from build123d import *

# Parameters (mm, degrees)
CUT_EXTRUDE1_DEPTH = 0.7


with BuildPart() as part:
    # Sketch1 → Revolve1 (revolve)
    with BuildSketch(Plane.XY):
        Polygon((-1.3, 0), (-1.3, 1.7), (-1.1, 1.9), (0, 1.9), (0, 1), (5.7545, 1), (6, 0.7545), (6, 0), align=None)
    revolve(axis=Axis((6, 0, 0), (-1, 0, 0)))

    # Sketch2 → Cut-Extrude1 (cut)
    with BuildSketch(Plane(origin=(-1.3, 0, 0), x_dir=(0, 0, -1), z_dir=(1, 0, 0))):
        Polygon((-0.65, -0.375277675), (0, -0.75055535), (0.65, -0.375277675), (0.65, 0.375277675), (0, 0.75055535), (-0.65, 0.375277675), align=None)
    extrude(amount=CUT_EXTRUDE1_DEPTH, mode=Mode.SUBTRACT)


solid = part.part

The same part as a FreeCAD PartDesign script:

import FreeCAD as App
import Part
import Sketcher
Q = App.Units.Quantity

doc = App.newDocument("Part")
body = doc.addObject("PartDesign::Body", "Body")

sketch1 = body.newObject("Sketcher::SketchObject", "Sketch")
sketch1.AttachmentSupport = (doc.getObject("XY_Plane"), [""])
sketch1.MapMode = "FlatFace"
sketch1.addGeometry(Part.LineSegment(App.Vector(-1.3, 1.7, 0), App.Vector(-1.3, 0, 0)), False)
sketch1.addGeometry(Part.LineSegment(App.Vector(-1.3, 0, 0), App.Vector(6, 0, 0)), False)
sketch1.addGeometry(Part.LineSegment(App.Vector(6, 0, 0), App.Vector(6, 0.75, 0)), False)
sketch1.addGeometry(Part.LineSegment(App.Vector(6, 0.75, 0), App.Vector(5.75, 1, 0)), False)
sketch1.addGeometry(Part.LineSegment(App.Vector(5.75, 1, 0), App.Vector(0, 1, 0)), False)
sketch1.addGeometry(Part.LineSegment(App.Vector(0, 1, 0), App.Vector(0, 1.9, 0)), False)
sketch1.addGeometry(Part.LineSegment(App.Vector(0, 1.9, 0), App.Vector(-1.1, 1.9, 0)), False)
sketch1.addGeometry(Part.LineSegment(App.Vector(-1.1, 1.9, 0), App.Vector(-1.3, 1.7, 0)), False)
sketch1.addConstraint(Sketcher.Constraint("Coincident", 0, 2, 1, 1))
sketch1.addConstraint(Sketcher.Constraint("Coincident", 1, 2, 2, 1))
sketch1.addConstraint(Sketcher.Constraint("Coincident", 2, 2, 3, 1))
sketch1.addConstraint(Sketcher.Constraint("Coincident", 3, 2, 4, 1))
sketch1.addConstraint(Sketcher.Constraint("Coincident", 4, 2, 5, 1))
sketch1.addConstraint(Sketcher.Constraint("Coincident", 5, 2, 6, 1))
sketch1.addConstraint(Sketcher.Constraint("Coincident", 6, 2, 7, 1))
sketch1.addConstraint(Sketcher.Constraint("Coincident", 7, 2, 0, 1))
sketch1.addConstraint(Sketcher.Constraint("Vertical", 0))
sketch1.addConstraint(Sketcher.Constraint("Horizontal", 1))
sketch1.addConstraint(Sketcher.Constraint("Vertical", 2))
sketch1.addConstraint(Sketcher.Constraint("Horizontal", 4))
sketch1.addConstraint(Sketcher.Constraint("Vertical", 5))
sketch1.addConstraint(Sketcher.Constraint("Horizontal", 6))
sketch1.addConstraint(Sketcher.Constraint("PointOnObject", 0, 2, -1))
sketch1.addConstraint(Sketcher.Constraint("PointOnObject", 4, 2, -2))
sketch1.addConstraint(Sketcher.Constraint("Perpendicular", 3, 7))
sketch1.addConstraint(Sketcher.Constraint("Angle", 3, Q("135 deg")))
sketch1.addConstraint(Sketcher.Constraint("DistanceX", 1, 1, 1, 2, Q("7.3 mm")))
sketch1.addConstraint(Sketcher.Constraint("DistanceX", 6, 2, 6, 1, Q("1.1 mm")))
sketch1.addConstraint(Sketcher.Constraint("DistanceY", 0, 2, 0, 1, Q("1.7 mm")))
sketch1.addConstraint(Sketcher.Constraint("DistanceY", 5, 1, 5, 2, Q("0.9 mm")))
sketch1.addConstraint(Sketcher.Constraint("DistanceX", -1, 1, 1, 2, Q("6 mm")))
sketch1.addConstraint(Sketcher.Constraint("DistanceX", 4, 2, 4, 1, Q("5.7545 mm")))
revolution = body.newObject("PartDesign::Revolution", "Revolution")
revolution.Profile = sketch1
revolution.ReferenceAxis = (sketch1, ["H_Axis"])
revolution.Angle = 360

sketch2 = body.newObject("Sketcher::SketchObject", "Sketch001")
sketch2.AttachmentSupport = (doc.getObject("YZ_Plane"), [""])
sketch2.MapMode = "FlatFace"
sketch2.AttachmentOffset = App.Placement(App.Vector(0, 0, -1.3), App.Rotation())
sketch2.addGeometry(Part.LineSegment(App.Vector(-0.4, 0.7, 0), App.Vector(-0.8, 0, 0)), False)
sketch2.addGeometry(Part.LineSegment(App.Vector(-0.8, 0, 0), App.Vector(-0.4, -0.7, 0)), False)
sketch2.addGeometry(Part.LineSegment(App.Vector(-0.4, -0.7, 0), App.Vector(0.4, -0.7, 0)), False)
sketch2.addGeometry(Part.LineSegment(App.Vector(0.4, -0.7, 0), App.Vector(0.8, 0, 0)), False)
sketch2.addGeometry(Part.LineSegment(App.Vector(0.8, 0, 0), App.Vector(0.4, 0.7, 0)), False)
sketch2.addGeometry(Part.LineSegment(App.Vector(0.4, 0.7, 0), App.Vector(-0.4, 0.7, 0)), False)
sketch2.addConstraint(Sketcher.Constraint("Coincident", 0, 2, 1, 1))
sketch2.addConstraint(Sketcher.Constraint("Coincident", 1, 2, 2, 1))
sketch2.addConstraint(Sketcher.Constraint("Coincident", 2, 2, 3, 1))
sketch2.addConstraint(Sketcher.Constraint("Coincident", 3, 2, 4, 1))
sketch2.addConstraint(Sketcher.Constraint("Coincident", 4, 2, 5, 1))
sketch2.addConstraint(Sketcher.Constraint("Coincident", 5, 2, 0, 1))
sketch2.addConstraint(Sketcher.Constraint("Horizontal", 2))
sketch2.addConstraint(Sketcher.Constraint("Horizontal", 5))
sketch2.addConstraint(Sketcher.Constraint("Symmetric", 0, 2, 3, 2, -1, 1))
sketch2.addConstraint(Sketcher.Constraint("Symmetric", 1, 2, 4, 2, -1, 1))
sketch2.addConstraint(Sketcher.Constraint("PointOnObject", 0, 2, -1))
sketch2.addConstraint(Sketcher.Constraint("Parallel", 0, 3))
sketch2.addConstraint(Sketcher.Constraint("Vertical", 2, 2, 4, 2))
sketch2.addConstraint(Sketcher.Constraint("Angle", 0, Q("-120 deg")))
sketch2.addConstraint(Sketcher.Constraint("DistanceY", 2, 2, 4, 2, Q("1.3 mm")))
sketch2.addConstraint(Sketcher.Constraint("DistanceX", 2, 1, 2, 2, Q("0.750555 mm")))
pocket1 = body.newObject("PartDesign::Pocket", "Pocket")
pocket1.Profile = sketch2
pocket1.Length = 0.7
pocket1.Reversed = True

doc.recompute()
